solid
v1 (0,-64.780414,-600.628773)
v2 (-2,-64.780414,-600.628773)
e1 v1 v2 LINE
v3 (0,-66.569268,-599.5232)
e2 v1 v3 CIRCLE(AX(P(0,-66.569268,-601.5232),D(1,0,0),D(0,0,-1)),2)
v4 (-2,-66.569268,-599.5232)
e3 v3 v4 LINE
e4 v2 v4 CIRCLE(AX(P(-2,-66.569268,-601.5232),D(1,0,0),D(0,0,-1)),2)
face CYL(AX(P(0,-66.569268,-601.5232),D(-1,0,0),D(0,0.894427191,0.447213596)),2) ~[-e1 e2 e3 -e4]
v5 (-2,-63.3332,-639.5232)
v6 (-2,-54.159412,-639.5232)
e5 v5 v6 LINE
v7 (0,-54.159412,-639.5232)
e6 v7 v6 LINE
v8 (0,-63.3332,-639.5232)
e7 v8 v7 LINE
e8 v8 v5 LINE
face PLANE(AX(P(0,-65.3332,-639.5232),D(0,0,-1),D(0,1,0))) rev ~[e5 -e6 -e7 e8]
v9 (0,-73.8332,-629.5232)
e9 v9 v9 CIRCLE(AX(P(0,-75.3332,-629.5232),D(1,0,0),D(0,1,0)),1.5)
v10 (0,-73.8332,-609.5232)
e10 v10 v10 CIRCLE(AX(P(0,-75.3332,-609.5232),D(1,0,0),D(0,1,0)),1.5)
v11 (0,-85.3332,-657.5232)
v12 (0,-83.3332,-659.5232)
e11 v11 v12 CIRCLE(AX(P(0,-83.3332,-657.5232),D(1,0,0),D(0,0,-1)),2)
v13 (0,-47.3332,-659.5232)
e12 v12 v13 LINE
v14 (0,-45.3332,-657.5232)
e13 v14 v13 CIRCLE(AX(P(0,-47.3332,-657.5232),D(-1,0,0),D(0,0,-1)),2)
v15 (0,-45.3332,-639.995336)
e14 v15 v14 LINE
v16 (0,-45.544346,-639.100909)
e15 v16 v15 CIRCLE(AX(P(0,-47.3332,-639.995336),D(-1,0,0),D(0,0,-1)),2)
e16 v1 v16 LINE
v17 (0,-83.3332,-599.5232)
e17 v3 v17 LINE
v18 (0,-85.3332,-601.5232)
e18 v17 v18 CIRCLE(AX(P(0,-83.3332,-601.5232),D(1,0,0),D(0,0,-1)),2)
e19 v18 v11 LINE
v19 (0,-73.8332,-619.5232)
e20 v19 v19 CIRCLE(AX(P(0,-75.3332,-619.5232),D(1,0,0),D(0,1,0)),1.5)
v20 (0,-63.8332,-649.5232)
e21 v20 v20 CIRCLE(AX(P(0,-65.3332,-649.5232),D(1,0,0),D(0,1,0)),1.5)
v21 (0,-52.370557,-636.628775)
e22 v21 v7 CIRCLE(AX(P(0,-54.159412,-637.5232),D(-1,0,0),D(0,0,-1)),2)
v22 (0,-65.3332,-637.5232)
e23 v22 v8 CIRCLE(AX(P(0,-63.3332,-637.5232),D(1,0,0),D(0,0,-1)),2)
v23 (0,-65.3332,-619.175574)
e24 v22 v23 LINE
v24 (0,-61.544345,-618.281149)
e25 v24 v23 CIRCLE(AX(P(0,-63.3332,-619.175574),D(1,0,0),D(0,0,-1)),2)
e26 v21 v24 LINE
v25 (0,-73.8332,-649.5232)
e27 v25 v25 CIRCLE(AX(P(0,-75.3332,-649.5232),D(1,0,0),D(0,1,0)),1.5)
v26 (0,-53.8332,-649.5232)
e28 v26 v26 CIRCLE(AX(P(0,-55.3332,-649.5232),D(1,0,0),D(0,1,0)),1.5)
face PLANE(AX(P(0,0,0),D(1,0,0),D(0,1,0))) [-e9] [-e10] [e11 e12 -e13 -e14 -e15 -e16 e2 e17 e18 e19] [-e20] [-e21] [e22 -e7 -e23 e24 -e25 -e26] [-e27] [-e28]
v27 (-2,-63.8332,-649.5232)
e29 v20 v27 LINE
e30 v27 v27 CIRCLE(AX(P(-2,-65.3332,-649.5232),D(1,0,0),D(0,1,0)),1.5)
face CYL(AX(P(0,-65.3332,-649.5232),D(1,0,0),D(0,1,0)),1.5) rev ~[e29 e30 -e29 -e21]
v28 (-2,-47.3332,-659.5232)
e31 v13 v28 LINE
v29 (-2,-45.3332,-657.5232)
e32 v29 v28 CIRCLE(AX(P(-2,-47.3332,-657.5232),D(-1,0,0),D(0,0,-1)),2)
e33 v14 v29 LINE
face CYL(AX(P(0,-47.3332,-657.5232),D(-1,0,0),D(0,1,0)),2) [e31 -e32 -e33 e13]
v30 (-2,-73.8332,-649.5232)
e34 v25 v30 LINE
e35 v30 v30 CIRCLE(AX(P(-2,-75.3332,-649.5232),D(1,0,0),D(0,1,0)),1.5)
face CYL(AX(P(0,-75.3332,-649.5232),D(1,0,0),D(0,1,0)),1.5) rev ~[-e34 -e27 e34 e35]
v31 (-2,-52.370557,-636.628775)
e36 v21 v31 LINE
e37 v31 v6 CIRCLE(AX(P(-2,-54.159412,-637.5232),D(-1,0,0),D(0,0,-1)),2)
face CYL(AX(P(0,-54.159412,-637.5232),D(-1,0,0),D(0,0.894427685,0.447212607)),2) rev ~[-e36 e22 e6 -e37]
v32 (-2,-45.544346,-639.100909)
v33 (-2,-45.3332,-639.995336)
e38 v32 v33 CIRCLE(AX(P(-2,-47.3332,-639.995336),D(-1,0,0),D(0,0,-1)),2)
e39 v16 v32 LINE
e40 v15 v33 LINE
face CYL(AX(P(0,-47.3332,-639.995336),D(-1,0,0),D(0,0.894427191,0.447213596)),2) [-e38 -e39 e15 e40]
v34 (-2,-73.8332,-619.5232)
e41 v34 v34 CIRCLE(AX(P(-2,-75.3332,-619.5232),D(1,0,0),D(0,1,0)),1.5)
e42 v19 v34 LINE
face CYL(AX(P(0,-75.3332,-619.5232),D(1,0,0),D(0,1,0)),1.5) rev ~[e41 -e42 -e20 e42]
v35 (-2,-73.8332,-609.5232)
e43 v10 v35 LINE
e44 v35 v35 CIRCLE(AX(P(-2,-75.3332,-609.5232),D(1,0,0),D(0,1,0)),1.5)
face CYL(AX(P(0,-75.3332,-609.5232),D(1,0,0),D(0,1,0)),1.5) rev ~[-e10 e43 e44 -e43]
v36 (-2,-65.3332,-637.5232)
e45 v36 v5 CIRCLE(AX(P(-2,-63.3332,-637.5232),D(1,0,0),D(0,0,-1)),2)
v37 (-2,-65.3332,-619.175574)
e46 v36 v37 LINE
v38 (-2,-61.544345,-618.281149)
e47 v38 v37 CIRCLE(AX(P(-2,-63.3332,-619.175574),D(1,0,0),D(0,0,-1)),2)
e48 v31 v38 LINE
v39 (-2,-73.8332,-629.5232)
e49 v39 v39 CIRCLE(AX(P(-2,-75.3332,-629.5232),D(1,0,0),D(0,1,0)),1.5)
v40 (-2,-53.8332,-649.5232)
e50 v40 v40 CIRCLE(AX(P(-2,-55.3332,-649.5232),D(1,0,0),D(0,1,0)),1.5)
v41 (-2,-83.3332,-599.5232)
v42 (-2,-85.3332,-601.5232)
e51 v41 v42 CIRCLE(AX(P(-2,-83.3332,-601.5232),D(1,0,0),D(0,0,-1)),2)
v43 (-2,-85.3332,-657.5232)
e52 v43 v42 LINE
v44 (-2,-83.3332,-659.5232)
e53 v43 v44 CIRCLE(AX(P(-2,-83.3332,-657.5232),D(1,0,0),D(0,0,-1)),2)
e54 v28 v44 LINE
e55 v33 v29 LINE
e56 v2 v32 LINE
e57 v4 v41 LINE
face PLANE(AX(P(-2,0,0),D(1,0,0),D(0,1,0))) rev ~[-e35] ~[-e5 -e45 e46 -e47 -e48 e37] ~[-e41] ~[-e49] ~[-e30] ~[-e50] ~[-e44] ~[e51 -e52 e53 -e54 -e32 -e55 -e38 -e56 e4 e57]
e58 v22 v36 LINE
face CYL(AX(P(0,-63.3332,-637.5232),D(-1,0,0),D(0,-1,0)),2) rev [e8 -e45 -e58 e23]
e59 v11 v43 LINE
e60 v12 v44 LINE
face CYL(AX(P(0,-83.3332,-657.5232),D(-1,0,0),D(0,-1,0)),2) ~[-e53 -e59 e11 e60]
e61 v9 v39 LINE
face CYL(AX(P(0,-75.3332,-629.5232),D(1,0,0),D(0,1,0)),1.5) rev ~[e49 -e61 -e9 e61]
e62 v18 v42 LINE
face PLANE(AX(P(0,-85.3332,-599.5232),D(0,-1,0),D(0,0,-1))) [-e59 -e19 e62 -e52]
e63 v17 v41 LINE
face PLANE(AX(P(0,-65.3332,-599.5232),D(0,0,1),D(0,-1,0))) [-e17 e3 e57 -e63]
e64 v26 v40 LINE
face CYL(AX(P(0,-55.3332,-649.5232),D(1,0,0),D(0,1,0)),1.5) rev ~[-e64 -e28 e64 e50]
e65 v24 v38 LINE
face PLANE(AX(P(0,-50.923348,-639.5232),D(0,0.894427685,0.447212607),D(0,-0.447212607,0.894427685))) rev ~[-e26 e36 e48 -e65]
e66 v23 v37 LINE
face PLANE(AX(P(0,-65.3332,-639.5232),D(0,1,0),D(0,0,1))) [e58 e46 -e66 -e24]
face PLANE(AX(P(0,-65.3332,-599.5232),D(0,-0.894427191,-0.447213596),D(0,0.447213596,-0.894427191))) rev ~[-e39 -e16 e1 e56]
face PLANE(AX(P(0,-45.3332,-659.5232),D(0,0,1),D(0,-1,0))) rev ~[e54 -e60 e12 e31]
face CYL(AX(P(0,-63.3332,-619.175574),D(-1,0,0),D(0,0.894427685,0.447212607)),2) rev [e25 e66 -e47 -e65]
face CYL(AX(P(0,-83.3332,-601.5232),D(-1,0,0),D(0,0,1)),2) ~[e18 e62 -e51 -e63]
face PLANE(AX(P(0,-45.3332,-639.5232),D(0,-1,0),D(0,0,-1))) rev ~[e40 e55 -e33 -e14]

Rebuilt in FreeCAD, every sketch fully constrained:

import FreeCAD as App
import Part
import Sketcher
from FreeCAD import Vector
Q = App.Units.Quantity


def edges_at(feature, points):
    """Names of the edges that pass closest to the given points."""
    edges = feature.Shape.Edges
    near = lambda p: min(range(len(edges)), key=lambda i: edges[i].distToShape(Part.Vertex(*p))[0])
    return sorted({f"Edge{near(p) + 1}" for p in points})

doc = App.newDocument("Part")
params = doc.addObject("Spreadsheet::Sheet", "Params")
for row, (alias, value) in enumerate([
    ("sketch1_diameter", "3 mm"),
    ("sketch1_width", "20 mm"),
    ("sketch1_width2", "40 mm"),
    ("pad1_length", "2 mm"),
    ("sketch2_width", "14.4099 mm"),
    ("pocket1_length", "2 mm"),
    ("fillet_radius", "2 mm"),
], start=1):
    params.set(f"A{row}", alias)
    params.set(f"B{row}", "=" + value)
    params.setAlias(f"B{row}", alias)

body = doc.addObject("PartDesign::Body", "Body")

# Sketch on YZ plane
sketch1 = doc.addObject("Sketcher::SketchObject", "Sketch")
body.addObject(sketch1)
sketch1.AttachmentSupport = (doc.YZ_Plane, [""])
sketch1.MapMode = "FlatFace"
sketch1.addGeometry([
    Part.LineSegment(Vector(-45.3, -639.5, 0), Vector(-65.3, -599.5, 0)),  # 0
    Part.LineSegment(Vector(-65.3, -599.5, 0), Vector(-85.3, -599.5, 0)),  # 1
    Part.LineSegment(Vector(-85.3, -599.5, 0), Vector(-85.3, -659.5, 0)),  # 2
    Part.LineSegment(Vector(-85.3, -659.5, 0), Vector(-45.3, -659.5, 0)),  # 3
    Part.LineSegment(Vector(-45.3, -659.5, 0), Vector(-45.3, -639.5, 0)),  # 4
    Part.Circle(Vector(-75.3, -649.5, 0), Vector(0, 0, 1), 1.5),  # 5
    Part.Circle(Vector(-65.3, -649.5, 0), Vector(0, 0, 1), 1.5),  # 6
    Part.Circle(Vector(-55.3, -649.5, 0), Vector(0, 0, 1), 1.5),  # 7
    Part.Circle(Vector(-75.3, -609.5, 0), Vector(0, 0, 1), 1.5),  # 8
    Part.Circle(Vector(-75.3, -629.5, 0), Vector(0, 0, 1), 1.5),  # 9
    Part.Circle(Vector(-75.3, -619.5, 0), Vector(0, 0, 1), 1.5),  # 10
], False)
sketch1.addConstraint([
    Sketcher.Constraint("Coincident", 0, 2, 1, 1),
    Sketcher.Constraint("Coincident", 1, 2, 2, 1),
    Sketcher.Constraint("Coincident", 2, 2, 3, 1),
    Sketcher.Constraint("Coincident", 3, 2, 4, 1),
    Sketcher.Constraint("Coincident", 4, 2, 0, 1),
    Sketcher.Constraint("Horizontal", 1),
    Sketcher.Constraint("Vertical", 2),
    Sketcher.Constraint("Horizontal", 3),
    Sketcher.Constraint("Vertical", 4),
    Sketcher.Constraint("Equal", 5, 6),
    Sketcher.Constraint("Equal", 6, 7),
    Sketcher.Constraint("Equal", 7, 8),
    Sketcher.Constraint("Equal", 8, 9),
    Sketcher.Constraint("Equal", 9, 10),
    Sketcher.Constraint("Horizontal", 5, 3, 6, 3),
    Sketcher.Constraint("Horizontal", 6, 3, 7, 3),
    Sketcher.Constraint("Vertical", 5, 3, 8, 3),
    Sketcher.Constraint("Vertical", 8, 3, 9, 3),
    Sketcher.Constraint("Vertical", 9, 3, 10, 3),
    Sketcher.Constraint("Vertical", 6, 3, 0, 2),
    Sketcher.Constraint("Equal", 1, 4),
    Sketcher.Constraint("Diameter", 5, Q("3 mm")),
    Sketcher.Constraint("DistanceX", 1, 2, 1, 1, Q("20 mm")),
    Sketcher.Constraint("DistanceX", 3, 1, 3, 2, Q("40 mm")),
    Sketcher.Constraint("DistanceX", 5, 3, 6, 3, Q("10 mm")),
    Sketcher.Constraint("DistanceX", 6, 3, 7, 3, Q("10 mm")),
    Sketcher.Constraint("DistanceY", 5, 3, 8, 3, Q("40 mm")),
    Sketcher.Constraint("DistanceY", 5, 3, 9, 3, Q("20 mm")),
    Sketcher.Constraint("DistanceY", 10, 3, 8, 3, Q("10 mm")),
    Sketcher.Constraint("DistanceY", 8, 3, 0, 2, Q("10 mm")),
    Sketcher.Constraint("DistanceY", 2, 2, 5, 3, Q("10 mm")),
    Sketcher.Constraint("DistanceX", 5, 3, -1, 1, Q("75.3332 mm")),
    Sketcher.Constraint("DistanceY", 5, 3, -1, 1, Q("649.5232 mm")),
])
sketch1.setExpression("Constraints[21]", "Params.sketch1_diameter")
sketch1.setExpression("Constraints[22]", "Params.sketch1_width")
sketch1.setExpression("Constraints[23]", "Params.sketch1_width2")
pad1 = doc.addObject("PartDesign::Pad", "Pad")
body.addObject(pad1)
pad1.Profile = sketch1
pad1.setExpression("Length", "Params.pad1_length")
pad1.Reversed = True

# Sketch on YZ plane
sketch2 = doc.addObject("Sketcher::SketchObject", "Sketch001")
body.addObject(sketch2)
sketch2.AttachmentSupport = (doc.YZ_Plane, [""])
sketch2.MapMode = "FlatFace"
sketch2.addGeometry([
    Part.LineSegment(Vector(-51, -640, 0), Vector(-65, -611, 0)),
    Part.LineSegment(Vector(-65, -611, 0), Vector(-65, -640, 0)),
    Part.LineSegment(Vector(-65, -640, 0), Vector(-51, -640, 0)),
], False)
sketch2.addConstraint([
    Sketcher.Constraint("Coincident", 0, 2, 1, 1),
    Sketcher.Constraint("Coincident", 1, 2, 2, 1),
    Sketcher.Constraint("Coincident", 2, 2, 0, 1),
    Sketcher.Constraint("Vertical", 1),
    Sketcher.Constraint("Horizontal", 2),
    Sketcher.Constraint("DistanceX", 2, 1, 2, 2, Q("14.4099 mm")),
    Sketcher.Constraint("DistanceY", 1, 2, 1, 1, Q("28.8198 mm")),
    Sketcher.Constraint("DistanceX", 0, 2, -1, 1, Q("65.3332 mm")),
    Sketcher.Constraint("DistanceY", 0, 2, -1, 1, Q("610.7034 mm")),
])
sketch2.setExpression("Constraints[5]", "Params.sketch2_width")
pocket1 = doc.addObject("PartDesign::Pocket", "Pocket")
body.addObject(pocket1)
pocket1.Profile = sketch2
pocket1.setExpression("Length", "Params.pocket1_length")
doc.recompute()

fillet = doc.addObject("PartDesign::Fillet", "Fillet")
body.addObject(fillet)
fillet.Base = (pocket1, edges_at(pocket1, [
    (-1, -85.333, -599.523),
    (-1, -65.333, -599.523),
    (-1, -65.333, -610.703),
    (-1, -65.333, -639.523),
    (-1, -50.923, -639.523),
    (-1, -45.333, -639.523),
    (-1, -45.333, -659.523),
    (-1, -85.333, -659.523),
]))
fillet.setExpression("Radius", "Params.fillet_radius")

doc.recompute()
